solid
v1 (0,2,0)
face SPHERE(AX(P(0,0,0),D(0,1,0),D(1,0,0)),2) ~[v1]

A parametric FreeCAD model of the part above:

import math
import FreeCAD as App
import Part
import Sketcher

V = App.Vector
Q = App.Units.Quantity

doc = App.newDocument("Part")
params = doc.addObject("Spreadsheet::Sheet", "Params")
for row, (alias, value) in enumerate([
    ("sketch1_radius", "2 mm"),
    ("revolution_angle", "360 deg"),
], start=1):
    params.set(f"A{row}", alias)
    params.set(f"B{row}", "=" + value)
    params.setAlias(f"B{row}", alias)

body = doc.addObject("PartDesign::Body", "Body")

sketch1 = body.newObject("Sketcher::SketchObject", "Sketch")
sketch1.AttachmentSupport = (doc.getObject("XY_Plane"), [""])
sketch1.MapMode = "FlatFace"
sketch1.addGeometry([
    Part.LineSegment(V(0, 2, 0), V(0, -2, 0)),
    Part.ArcOfCircle(Part.Circle(V(0, 0, 0), V(0, 0, 1), 2), math.radians(-90), math.radians(90)),
], False)
sketch1.addConstraint([
    Sketcher.Constraint("Coincident", 0, 1, 1, 2),
    Sketcher.Constraint("Coincident", 1, 1, 0, 2),
    Sketcher.Constraint("Vertical", 0),
    Sketcher.Constraint("Coincident", 1, 3, -1, 1),
    Sketcher.Constraint("PointOnObject", 0, 1, -2),
    Sketcher.Constraint("Radius", 1, Q("2 mm")),
])
sketch1.setExpression("Constraints[5]", "Params.sketch1_radius")
revolution = body.newObject("PartDesign::Revolution", "Revolution")
revolution.Profile = sketch1
revolution.ReferenceAxis = (sketch1, ["V_Axis"])
revolution.setExpression("Angle", "Params.revolution_angle")

doc.recompute()
